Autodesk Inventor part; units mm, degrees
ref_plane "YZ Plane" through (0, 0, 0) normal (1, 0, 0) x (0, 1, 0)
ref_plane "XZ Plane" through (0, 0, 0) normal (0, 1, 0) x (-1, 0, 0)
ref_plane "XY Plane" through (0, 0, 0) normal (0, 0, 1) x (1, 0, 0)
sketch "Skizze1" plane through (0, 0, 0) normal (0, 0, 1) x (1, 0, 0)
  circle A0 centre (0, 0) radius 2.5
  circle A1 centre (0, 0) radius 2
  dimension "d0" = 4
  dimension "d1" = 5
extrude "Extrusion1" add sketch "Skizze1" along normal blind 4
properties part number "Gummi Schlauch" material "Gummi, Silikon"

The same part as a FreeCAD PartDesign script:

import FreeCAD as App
import Part
import Sketcher

doc = App.newDocument("Part")
body = doc.addObject("PartDesign::Body", "Body")

sketch1 = doc.addObject("Sketcher::SketchObject", "Sketch")
body.addObject(sketch1)
sketch1.AttachmentSupport = (doc.XY_Plane, [""])
sketch1.MapMode = "FlatFace"
sketch1.addGeometry([
    Part.Circle(App.Vector(0, 0, 0), App.Vector(0, 0, 1), 2.5),
    Part.Circle(App.Vector(0, 0, 0), App.Vector(0, 0, 1), 2),
], False)
sketch1.addConstraint([
    Sketcher.Constraint("Coincident", 0, 3, -1, 1),
    Sketcher.Constraint("Coincident", 1, 3, -1, 1),
    Sketcher.Constraint("Diameter", 0, 5.0),
    Sketcher.Constraint("Diameter", 1, 4.0),
])
pad1 = doc.addObject("PartDesign::Pad", "Pad")
body.addObject(pad1)
pad1.Profile = sketch1
pad1.Length = 4

doc.recompute()
